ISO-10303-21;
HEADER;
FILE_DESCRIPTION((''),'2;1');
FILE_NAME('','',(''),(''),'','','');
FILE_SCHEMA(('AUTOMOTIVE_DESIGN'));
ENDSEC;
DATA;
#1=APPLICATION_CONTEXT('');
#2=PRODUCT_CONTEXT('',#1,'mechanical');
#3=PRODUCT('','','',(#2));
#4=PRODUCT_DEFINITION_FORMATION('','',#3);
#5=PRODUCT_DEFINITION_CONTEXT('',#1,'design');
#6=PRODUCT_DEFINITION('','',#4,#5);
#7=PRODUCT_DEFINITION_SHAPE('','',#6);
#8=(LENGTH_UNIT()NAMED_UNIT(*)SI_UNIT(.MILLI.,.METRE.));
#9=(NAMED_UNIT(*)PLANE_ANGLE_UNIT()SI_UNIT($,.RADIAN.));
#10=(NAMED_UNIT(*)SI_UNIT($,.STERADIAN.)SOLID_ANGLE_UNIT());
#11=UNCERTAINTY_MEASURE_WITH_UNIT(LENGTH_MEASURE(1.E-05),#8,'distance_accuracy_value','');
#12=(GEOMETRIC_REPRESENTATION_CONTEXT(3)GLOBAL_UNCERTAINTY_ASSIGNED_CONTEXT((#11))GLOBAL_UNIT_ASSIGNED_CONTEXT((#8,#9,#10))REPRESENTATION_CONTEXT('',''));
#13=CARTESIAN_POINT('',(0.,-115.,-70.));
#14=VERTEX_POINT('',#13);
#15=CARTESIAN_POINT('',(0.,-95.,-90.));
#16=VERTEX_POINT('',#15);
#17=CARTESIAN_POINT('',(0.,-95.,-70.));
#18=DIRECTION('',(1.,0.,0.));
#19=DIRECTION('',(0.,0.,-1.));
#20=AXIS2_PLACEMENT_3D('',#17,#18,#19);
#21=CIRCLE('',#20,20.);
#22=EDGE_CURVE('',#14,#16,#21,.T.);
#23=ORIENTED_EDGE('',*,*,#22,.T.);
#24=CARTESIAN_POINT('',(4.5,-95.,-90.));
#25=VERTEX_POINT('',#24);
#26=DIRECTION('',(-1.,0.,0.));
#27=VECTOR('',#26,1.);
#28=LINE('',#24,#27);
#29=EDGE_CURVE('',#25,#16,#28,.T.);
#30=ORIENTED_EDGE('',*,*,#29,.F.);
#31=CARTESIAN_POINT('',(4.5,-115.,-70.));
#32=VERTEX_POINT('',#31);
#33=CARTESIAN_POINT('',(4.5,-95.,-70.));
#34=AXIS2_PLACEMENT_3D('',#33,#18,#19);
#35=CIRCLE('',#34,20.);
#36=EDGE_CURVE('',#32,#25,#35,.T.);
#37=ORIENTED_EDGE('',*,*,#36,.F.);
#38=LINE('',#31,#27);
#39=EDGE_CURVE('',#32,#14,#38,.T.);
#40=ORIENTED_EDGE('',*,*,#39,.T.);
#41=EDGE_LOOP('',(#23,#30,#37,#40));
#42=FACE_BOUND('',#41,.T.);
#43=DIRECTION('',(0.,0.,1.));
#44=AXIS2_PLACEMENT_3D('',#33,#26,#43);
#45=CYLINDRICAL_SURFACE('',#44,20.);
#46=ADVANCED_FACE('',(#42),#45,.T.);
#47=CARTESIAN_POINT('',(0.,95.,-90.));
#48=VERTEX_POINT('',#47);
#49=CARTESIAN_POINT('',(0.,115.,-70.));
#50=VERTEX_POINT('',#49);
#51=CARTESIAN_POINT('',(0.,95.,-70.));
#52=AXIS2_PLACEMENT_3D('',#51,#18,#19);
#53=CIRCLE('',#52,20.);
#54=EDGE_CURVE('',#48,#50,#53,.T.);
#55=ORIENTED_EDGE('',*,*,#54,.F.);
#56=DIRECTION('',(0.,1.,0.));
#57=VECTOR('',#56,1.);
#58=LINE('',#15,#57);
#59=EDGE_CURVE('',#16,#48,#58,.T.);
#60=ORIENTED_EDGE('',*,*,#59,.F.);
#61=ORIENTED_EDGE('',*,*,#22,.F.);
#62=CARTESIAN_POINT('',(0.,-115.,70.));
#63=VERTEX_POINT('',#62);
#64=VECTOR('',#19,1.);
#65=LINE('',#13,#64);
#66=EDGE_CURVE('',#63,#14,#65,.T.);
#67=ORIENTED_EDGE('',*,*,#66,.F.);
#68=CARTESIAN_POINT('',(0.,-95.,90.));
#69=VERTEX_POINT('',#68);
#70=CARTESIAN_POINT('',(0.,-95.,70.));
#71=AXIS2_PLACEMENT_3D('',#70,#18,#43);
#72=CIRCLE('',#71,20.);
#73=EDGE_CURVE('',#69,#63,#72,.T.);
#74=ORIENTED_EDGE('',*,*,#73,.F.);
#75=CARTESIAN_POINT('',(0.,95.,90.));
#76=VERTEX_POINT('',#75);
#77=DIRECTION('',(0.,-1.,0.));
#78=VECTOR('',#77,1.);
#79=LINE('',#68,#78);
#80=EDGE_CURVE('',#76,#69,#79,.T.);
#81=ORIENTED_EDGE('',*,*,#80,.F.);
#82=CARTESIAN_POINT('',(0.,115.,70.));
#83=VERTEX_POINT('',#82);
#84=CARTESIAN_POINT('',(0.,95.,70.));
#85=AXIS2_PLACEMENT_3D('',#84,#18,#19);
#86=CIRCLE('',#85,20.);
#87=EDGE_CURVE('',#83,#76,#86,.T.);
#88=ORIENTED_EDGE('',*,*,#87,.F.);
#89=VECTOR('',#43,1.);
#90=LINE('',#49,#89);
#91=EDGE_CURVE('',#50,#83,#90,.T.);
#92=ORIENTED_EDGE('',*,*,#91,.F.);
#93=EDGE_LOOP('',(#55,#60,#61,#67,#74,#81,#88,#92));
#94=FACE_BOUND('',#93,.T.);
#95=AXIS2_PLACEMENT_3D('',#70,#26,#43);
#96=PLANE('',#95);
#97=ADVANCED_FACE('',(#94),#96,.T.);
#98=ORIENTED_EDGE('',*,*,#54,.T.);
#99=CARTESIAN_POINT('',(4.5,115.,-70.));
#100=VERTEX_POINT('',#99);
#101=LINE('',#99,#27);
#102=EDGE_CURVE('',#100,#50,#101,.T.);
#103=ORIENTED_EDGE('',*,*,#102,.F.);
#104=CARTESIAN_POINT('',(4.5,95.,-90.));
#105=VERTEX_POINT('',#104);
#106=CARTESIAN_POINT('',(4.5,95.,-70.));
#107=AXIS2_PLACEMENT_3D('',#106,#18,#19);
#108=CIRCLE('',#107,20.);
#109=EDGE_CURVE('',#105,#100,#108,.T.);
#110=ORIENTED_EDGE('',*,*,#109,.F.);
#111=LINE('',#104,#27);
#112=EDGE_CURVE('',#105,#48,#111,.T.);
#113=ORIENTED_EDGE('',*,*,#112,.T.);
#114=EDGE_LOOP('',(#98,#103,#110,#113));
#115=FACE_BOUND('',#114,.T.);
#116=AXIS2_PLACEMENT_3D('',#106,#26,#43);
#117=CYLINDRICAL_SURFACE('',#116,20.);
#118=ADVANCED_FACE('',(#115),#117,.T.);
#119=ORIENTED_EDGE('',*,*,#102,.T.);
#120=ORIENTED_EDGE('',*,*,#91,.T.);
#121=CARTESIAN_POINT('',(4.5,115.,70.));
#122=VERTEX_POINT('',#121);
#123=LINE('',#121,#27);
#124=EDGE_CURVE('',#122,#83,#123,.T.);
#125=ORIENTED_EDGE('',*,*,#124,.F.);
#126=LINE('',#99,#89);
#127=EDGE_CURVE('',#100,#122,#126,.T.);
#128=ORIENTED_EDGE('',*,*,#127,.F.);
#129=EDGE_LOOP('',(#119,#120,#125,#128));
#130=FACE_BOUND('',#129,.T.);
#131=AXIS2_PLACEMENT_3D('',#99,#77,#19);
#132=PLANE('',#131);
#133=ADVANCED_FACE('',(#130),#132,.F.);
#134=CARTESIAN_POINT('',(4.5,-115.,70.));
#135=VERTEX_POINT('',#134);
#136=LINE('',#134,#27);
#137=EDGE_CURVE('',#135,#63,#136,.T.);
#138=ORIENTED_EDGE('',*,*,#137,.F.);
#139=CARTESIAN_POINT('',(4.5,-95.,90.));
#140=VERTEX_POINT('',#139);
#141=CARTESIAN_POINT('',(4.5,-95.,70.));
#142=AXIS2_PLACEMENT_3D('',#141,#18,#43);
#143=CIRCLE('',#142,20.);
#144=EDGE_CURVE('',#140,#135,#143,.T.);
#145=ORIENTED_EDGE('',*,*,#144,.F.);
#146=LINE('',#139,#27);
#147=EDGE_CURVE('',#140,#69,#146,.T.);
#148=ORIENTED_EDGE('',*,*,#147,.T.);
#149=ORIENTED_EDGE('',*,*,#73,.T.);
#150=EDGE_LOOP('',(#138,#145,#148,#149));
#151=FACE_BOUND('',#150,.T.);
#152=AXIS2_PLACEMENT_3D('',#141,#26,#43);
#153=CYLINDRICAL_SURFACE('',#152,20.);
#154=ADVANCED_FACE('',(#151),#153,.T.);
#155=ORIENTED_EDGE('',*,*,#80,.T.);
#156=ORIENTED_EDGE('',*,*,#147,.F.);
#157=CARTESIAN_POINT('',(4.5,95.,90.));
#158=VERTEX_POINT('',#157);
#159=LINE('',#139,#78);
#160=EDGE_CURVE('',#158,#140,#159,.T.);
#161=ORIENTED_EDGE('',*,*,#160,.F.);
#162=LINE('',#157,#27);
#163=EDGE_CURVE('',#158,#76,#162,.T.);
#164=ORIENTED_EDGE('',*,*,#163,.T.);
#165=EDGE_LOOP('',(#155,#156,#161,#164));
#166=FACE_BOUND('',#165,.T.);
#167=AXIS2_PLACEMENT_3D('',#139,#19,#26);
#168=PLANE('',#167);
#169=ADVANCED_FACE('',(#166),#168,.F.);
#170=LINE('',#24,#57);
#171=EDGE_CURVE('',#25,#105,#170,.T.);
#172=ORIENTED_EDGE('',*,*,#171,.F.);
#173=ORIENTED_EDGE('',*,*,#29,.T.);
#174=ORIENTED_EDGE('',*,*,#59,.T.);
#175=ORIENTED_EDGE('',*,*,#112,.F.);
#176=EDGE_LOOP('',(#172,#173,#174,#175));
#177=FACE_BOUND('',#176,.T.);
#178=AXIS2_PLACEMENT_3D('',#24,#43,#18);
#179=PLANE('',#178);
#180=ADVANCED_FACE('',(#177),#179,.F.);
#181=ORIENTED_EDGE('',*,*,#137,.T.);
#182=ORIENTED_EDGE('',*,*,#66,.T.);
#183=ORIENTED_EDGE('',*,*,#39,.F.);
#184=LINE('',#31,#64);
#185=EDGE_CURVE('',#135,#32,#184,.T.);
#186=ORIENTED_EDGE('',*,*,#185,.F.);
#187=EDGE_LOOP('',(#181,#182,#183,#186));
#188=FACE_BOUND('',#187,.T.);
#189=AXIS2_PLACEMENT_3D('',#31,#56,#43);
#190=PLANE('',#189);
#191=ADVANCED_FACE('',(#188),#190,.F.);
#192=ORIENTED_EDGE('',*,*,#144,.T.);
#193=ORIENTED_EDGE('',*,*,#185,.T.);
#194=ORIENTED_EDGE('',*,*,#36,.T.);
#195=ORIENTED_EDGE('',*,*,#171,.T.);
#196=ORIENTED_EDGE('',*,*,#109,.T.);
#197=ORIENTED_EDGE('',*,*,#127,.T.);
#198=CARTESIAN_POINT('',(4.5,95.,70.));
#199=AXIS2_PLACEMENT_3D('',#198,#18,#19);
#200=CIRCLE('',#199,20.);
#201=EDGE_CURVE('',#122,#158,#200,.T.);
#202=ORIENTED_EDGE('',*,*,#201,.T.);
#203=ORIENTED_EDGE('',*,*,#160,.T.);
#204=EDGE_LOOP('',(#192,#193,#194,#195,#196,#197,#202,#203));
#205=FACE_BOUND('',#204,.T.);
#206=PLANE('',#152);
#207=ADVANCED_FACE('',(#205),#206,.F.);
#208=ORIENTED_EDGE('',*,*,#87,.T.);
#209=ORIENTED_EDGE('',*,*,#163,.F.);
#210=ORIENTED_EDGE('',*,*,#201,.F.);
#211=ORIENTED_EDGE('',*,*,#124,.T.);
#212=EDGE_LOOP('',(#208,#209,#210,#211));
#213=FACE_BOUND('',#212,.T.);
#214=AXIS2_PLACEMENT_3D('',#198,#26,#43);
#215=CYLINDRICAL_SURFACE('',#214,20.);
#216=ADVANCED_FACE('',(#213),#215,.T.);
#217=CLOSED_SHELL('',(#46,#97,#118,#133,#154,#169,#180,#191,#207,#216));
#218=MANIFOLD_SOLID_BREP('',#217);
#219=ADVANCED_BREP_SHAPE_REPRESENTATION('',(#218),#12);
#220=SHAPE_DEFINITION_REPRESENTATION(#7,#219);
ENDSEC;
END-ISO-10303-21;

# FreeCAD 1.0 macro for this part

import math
import FreeCAD as App
import Part
import Sketcher

V = App.Vector

doc = App.newDocument("Part")
body = doc.addObject("PartDesign::Body", "Body")

sketch1 = doc.addObject("Sketcher::SketchObject", "Sketch")
body.addObject(sketch1)
sketch1.AttachmentSupport = (doc.YZ_Plane, [""])
sketch1.MapMode = "FlatFace"
sketch1.addGeometry([
    Part.LineSegment(V(-115, 70, 0), V(-115, -70, 0)),
    Part.ArcOfCircle(Part.Circle(V(-95, -70, 0), V(0, 0, 1), 20), math.radians(180), math.radians(270)),
    Part.LineSegment(V(-95, -90, 0), V(95, -90, 0)),
    Part.ArcOfCircle(Part.Circle(V(95, -70, 0), V(0, 0, 1), 20), math.radians(-90), math.radians(0)),
    Part.LineSegment(V(115, -70, 0), V(115, 70, 0)),
    Part.ArcOfCircle(Part.Circle(V(95, 70, 0), V(0, 0, 1), 20), math.radians(0), math.radians(90)),
    Part.LineSegment(V(95, 90, 0), V(-95, 90, 0)),
    Part.ArcOfCircle(Part.Circle(V(-95, 70, 0), V(0, 0, 1), 20), math.radians(90), math.radians(180)),
], False)
sketch1.addConstraint([
    Sketcher.Constraint("Tangent", 0, 2, 1, 1),
    Sketcher.Constraint("Tangent", 1, 2, 2, 1),
    Sketcher.Constraint("Tangent", 2, 2, 3, 1),
    Sketcher.Constraint("Tangent", 3, 2, 4, 1),
    Sketcher.Constraint("Tangent", 4, 2, 5, 1),
    Sketcher.Constraint("Tangent", 5, 2, 6, 1),
    Sketcher.Constraint("Tangent", 6, 2, 7, 1),
    Sketcher.Constraint("Tangent", 7, 2, 0, 1),
    Sketcher.Constraint("Vertical", 0),
    Sketcher.Constraint("Horizontal", 2),
    Sketcher.Constraint("Vertical", 4),
    Sketcher.Constraint("Horizontal", 6),
    Sketcher.Constraint("Equal", 1, 3),
    Sketcher.Constraint("Equal", 3, 5),
    Sketcher.Constraint("Equal", 5, 7),
    Sketcher.Constraint("Symmetric", 1, 3, 5, 3, -1, 1),
    Sketcher.Constraint("Radius", 1, 20.0),
    Sketcher.Constraint("DistanceX", 2, 1, 2, 2, 190.0),
    Sketcher.Constraint("DistanceY", 0, 2, 0, 1, 140.0),
])
pad1 = doc.addObject("PartDesign::Pad", "Pad")
body.addObject(pad1)
pad1.Profile = sketch1
pad1.Length = 4.5

doc.recompute()
